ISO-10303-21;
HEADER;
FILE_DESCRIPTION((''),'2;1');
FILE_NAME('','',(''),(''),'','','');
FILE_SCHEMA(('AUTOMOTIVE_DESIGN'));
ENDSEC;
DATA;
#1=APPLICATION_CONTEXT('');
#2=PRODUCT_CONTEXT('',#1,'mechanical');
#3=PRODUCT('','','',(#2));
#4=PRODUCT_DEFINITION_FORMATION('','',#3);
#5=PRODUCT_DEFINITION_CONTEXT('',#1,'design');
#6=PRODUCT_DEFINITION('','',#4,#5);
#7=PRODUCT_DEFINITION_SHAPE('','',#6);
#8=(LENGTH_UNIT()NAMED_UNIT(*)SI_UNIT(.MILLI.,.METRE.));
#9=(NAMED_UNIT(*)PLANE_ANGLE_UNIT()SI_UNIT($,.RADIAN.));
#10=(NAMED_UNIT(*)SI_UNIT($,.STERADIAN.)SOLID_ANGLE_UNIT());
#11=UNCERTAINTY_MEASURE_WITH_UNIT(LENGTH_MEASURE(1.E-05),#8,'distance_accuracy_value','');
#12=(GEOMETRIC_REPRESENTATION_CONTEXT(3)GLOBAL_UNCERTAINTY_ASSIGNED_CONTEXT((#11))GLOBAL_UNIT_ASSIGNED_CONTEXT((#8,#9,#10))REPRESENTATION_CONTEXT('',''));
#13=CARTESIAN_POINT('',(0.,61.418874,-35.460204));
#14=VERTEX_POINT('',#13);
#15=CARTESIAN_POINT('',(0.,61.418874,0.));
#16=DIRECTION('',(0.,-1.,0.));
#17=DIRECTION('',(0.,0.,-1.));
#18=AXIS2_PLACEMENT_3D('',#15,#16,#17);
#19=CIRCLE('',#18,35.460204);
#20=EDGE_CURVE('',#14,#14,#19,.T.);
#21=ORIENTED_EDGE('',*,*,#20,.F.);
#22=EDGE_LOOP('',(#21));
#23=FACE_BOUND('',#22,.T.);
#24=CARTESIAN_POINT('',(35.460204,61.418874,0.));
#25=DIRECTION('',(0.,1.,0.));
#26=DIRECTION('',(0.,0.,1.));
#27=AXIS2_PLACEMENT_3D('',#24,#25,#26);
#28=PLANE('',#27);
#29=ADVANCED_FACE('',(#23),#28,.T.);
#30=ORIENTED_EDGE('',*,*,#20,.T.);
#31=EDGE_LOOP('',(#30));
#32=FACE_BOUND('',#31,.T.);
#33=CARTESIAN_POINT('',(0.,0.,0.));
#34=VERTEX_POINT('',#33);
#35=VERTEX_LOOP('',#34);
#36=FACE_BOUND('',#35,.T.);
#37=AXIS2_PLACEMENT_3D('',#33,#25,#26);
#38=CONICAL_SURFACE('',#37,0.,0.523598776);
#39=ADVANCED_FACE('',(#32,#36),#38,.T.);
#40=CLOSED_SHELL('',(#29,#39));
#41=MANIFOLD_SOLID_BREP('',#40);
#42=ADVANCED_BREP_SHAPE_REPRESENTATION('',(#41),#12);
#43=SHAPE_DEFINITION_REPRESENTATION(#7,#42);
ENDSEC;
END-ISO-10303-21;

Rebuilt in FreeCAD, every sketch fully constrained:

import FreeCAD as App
import Part
import Sketcher

V = App.Vector
Q = App.Units.Quantity


def add_polygon(sketch, points):
    """Adds a closed chain of lines whose ends are joined by coincident constraints."""
    first, n = sketch.GeometryCount, len(points)
    for a, b in zip(points, points[1:] + points[:1]):
        sketch.addGeometry(Part.LineSegment(App.Vector(*a, 0), App.Vector(*b, 0)), False)
    for i in range(n):
        sketch.addConstraint(Sketcher.Constraint("Coincident", first + i, 2, first + (i + 1) % n, 1))

doc = App.newDocument("Part")
body = doc.addObject("PartDesign::Body", "Body")

sketch1 = body.newObject("Sketcher::SketchObject", "Sketch")
sketch1.AttachmentSupport = (doc.getObject("XY_Plane"), [""])
sketch1.MapMode = "FlatFace"
add_polygon(sketch1, [(0, 0), (35, 61), (0, 61)])
sketch1.addConstraint(Sketcher.Constraint("Horizontal", 1))
sketch1.addConstraint(Sketcher.Constraint("Vertical", 2))
sketch1.addConstraint(Sketcher.Constraint("Coincident", 2, 2, -1, 1))
sketch1.addConstraint(Sketcher.Constraint("Angle", 0, Q("60 deg")))
sketch1.addConstraint(Sketcher.Constraint("DistanceX", 1, 2, 1, 1, 35.460204))
revolution = body.newObject("PartDesign::Revolution", "Revolution")
revolution.Profile = sketch1
revolution.ReferenceAxis = (sketch1, ["V_Axis"])
revolution.Angle = 360

doc.recompute()
